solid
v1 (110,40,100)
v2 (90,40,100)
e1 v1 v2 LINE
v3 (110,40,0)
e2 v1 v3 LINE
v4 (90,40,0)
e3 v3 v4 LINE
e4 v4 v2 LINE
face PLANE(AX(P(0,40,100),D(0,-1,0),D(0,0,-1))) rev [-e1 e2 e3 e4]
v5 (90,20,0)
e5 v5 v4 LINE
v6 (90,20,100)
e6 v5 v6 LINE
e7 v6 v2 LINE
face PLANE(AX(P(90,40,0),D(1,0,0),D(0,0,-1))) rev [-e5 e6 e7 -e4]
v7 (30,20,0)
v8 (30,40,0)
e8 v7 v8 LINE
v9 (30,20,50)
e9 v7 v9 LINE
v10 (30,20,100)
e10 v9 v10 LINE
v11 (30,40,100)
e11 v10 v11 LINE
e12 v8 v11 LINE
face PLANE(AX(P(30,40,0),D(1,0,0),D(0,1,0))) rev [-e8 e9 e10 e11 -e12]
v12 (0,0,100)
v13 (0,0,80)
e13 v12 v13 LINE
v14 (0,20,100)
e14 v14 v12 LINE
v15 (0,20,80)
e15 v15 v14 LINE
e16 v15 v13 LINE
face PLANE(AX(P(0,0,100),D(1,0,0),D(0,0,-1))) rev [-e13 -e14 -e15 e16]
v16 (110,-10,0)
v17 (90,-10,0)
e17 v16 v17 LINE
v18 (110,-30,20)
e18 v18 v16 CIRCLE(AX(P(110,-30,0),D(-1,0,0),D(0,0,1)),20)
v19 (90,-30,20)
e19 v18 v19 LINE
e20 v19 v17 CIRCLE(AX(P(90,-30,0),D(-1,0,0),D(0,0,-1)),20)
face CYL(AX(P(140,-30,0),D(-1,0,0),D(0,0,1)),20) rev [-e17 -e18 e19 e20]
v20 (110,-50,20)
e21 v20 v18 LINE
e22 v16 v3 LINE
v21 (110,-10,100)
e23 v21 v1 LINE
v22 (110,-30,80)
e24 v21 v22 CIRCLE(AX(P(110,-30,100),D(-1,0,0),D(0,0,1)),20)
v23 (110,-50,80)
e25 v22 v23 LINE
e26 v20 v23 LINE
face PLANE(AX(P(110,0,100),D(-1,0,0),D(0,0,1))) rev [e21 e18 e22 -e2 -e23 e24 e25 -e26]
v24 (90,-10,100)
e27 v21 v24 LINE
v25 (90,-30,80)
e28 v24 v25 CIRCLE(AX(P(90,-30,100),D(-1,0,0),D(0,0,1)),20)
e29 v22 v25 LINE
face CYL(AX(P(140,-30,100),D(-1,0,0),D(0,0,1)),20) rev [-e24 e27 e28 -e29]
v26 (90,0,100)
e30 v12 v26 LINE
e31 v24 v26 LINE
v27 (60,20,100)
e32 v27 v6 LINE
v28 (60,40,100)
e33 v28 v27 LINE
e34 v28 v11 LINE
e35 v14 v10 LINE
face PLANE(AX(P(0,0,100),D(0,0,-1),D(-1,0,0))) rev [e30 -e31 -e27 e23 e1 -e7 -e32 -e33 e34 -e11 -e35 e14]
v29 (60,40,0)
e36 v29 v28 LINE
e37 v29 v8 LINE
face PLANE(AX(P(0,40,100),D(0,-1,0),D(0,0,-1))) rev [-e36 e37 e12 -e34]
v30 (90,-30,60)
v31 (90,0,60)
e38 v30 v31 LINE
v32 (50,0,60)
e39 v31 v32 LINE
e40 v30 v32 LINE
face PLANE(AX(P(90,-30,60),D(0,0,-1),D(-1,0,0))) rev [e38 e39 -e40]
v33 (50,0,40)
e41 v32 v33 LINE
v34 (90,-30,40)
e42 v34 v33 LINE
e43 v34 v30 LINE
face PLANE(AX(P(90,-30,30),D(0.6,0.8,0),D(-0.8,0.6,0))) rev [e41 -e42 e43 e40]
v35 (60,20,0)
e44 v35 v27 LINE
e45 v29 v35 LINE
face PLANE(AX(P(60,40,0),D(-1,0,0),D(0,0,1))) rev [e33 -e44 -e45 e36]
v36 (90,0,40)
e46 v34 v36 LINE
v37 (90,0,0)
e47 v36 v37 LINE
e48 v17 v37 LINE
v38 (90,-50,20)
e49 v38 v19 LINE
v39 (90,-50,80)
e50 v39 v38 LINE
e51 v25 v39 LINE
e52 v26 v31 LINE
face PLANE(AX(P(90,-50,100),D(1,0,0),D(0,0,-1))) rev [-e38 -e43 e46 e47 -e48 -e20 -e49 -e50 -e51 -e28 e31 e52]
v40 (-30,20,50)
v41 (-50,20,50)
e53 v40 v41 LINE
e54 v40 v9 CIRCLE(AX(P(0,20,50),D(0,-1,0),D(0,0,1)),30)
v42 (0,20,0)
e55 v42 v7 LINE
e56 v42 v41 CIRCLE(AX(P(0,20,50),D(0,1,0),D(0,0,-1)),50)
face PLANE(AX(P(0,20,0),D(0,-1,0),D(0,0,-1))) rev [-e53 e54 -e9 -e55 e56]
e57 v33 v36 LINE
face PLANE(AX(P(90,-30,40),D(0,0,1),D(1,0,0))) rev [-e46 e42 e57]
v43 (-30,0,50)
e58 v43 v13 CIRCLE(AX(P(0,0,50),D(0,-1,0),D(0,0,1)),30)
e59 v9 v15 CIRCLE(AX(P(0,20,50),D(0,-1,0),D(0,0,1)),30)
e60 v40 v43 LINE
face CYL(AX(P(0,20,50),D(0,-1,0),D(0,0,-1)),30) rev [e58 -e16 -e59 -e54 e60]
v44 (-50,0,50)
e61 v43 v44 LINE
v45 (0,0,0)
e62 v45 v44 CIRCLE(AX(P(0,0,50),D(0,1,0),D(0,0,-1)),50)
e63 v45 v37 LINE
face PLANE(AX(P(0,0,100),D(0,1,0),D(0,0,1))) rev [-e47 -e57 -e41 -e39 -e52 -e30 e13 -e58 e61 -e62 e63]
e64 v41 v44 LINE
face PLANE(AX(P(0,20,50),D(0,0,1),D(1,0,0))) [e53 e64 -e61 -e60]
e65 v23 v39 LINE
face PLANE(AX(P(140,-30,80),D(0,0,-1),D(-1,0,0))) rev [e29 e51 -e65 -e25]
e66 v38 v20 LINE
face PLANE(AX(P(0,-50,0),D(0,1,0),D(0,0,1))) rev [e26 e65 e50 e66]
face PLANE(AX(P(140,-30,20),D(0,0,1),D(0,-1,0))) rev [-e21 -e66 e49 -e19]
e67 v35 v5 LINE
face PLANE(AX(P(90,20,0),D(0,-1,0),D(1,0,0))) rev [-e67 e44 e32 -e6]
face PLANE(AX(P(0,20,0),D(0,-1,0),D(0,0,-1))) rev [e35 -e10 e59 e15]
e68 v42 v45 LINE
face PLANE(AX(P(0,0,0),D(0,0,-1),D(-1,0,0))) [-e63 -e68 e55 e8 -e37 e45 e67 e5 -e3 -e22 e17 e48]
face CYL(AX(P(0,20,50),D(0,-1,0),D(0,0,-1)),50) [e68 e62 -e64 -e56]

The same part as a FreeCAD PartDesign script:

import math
import FreeCAD as App
import Part
import Sketcher
Q = App.Units.Quantity


def add_polygon(sketch, points):
    """Adds a closed chain of lines whose ends are joined by coincident constraints."""
    first, n = sketch.GeometryCount, len(points)
    for a, b in zip(points, points[1:] + points[:1]):
        sketch.addGeometry(Part.LineSegment(App.Vector(*a, 0), App.Vector(*b, 0)), False)
    for i in range(n):
        sketch.addConstraint(Sketcher.Constraint("Coincident", first + i, 2, first + (i + 1) % n, 1))

doc = App.newDocument("Part")
body = doc.addObject("PartDesign::Body", "Body")

# Sketch on XY plane
sketch1 = body.newObject("Sketcher::SketchObject", "Sketch")
sketch1.AttachmentSupport = (doc.getObject("XY_Plane"), [""])
sketch1.MapMode = "FlatFace"
add_polygon(sketch1, [(0, 40), (0, 0), (110, 0), (110, 40)])  # lines 0-3
sketch1.addConstraint(Sketcher.Constraint("Vertical", 0))
sketch1.addConstraint(Sketcher.Constraint("Horizontal", 1))
sketch1.addConstraint(Sketcher.Constraint("Vertical", 2))
sketch1.addConstraint(Sketcher.Constraint("Horizontal", 3))
sketch1.addConstraint(Sketcher.Constraint("Coincident", 0, 2, -1, 1))
sketch1.addConstraint(Sketcher.Constraint("DistanceX", 1, 1, 1, 2, Q("110 mm")))
sketch1.addConstraint(Sketcher.Constraint("DistanceY", 0, 2, 0, 1, Q("40 mm")))
pad1 = body.newObject("PartDesign::Pad", "Pad")
pad1.Profile = sketch1
pad1.Length = 100

# Sketch on XY plane
sketch2 = body.newObject("Sketcher::SketchObject", "Sketch001")
sketch2.AttachmentSupport = (doc.getObject("XY_Plane"), [""])
sketch2.MapMode = "FlatFace"
sketch2.AttachmentOffset = App.Placement(App.Vector(0, 0, 100), App.Rotation())
add_polygon(sketch2, [(60, 40), (60, 20), (90, 20), (90, 40)])  # lines 0-3
add_polygon(sketch2, [(0, 40), (0, 20), (30, 20), (30, 40)])  # lines 4-7
sketch2.addConstraint(Sketcher.Constraint("Vertical", 0))
sketch2.addConstraint(Sketcher.Constraint("Horizontal", 1))
sketch2.addConstraint(Sketcher.Constraint("Vertical", 2))
sketch2.addConstraint(Sketcher.Constraint("Horizontal", 3))
sketch2.addConstraint(Sketcher.Constraint("Vertical", 4))
sketch2.addConstraint(Sketcher.Constraint("Horizontal", 5))
sketch2.addConstraint(Sketcher.Constraint("Vertical", 6))
sketch2.addConstraint(Sketcher.Constraint("Horizontal", 7))
sketch2.addConstraint(Sketcher.Constraint("PointOnObject", 4, 2, -2))
sketch2.addConstraint(Sketcher.Constraint("Horizontal", 1, 2, 4, 2))
sketch2.addConstraint(Sketcher.Constraint("Horizontal", 3, 2, 6, 2))
sketch2.addConstraint(Sketcher.Constraint("Equal", 3, 5))
sketch2.addConstraint(Sketcher.Constraint("DistanceX", 1, 1, 1, 2, Q("30 mm")))
sketch2.addConstraint(Sketcher.Constraint("DistanceY", 0, 2, 0, 1, Q("20 mm")))
sketch2.addConstraint(Sketcher.Constraint("DistanceX", -1, 1, 0, 2, Q("60 mm")))
sketch2.addConstraint(Sketcher.Constraint("DistanceY", -1, 1, 0, 2, Q("20 mm")))
pocket1 = body.newObject("PartDesign::Pocket", "Pocket")
pocket1.Profile = sketch2
pocket1.Length = 100

# Sketch on XZ plane
sketch3 = body.newObject("Sketcher::SketchObject", "Sketch002")
sketch3.AttachmentSupport = (doc.getObject("XZ_Plane"), [""])
sketch3.MapMode = "FlatFace"
add_polygon(sketch3, [(110, 0), (110, 100), (90, 100), (90, 0)])  # lines 0-3
sketch3.addConstraint(Sketcher.Constraint("Vertical", 0))
sketch3.addConstraint(Sketcher.Constraint("Horizontal", 1))
sketch3.addConstraint(Sketcher.Constraint("Vertical", 2))
sketch3.addConstraint(Sketcher.Constraint("Horizontal", 3))
sketch3.addConstraint(Sketcher.Constraint("PointOnObject", 2, 2, -1))
sketch3.addConstraint(Sketcher.Constraint("DistanceX", 1, 2, 1, 1, Q("20 mm")))
sketch3.addConstraint(Sketcher.Constraint("DistanceY", 0, 1, 0, 2, Q("100 mm")))
sketch3.addConstraint(Sketcher.Constraint("DistanceX", -1, 1, 0, 2, Q("110 mm")))
pad2 = body.newObject("PartDesign::Pad", "Pad001")
pad2.Profile = sketch3
pad2.Length = 50

# Sketch on YZ plane
sketch4 = body.newObject("Sketcher::SketchObject", "Sketch003")
sketch4.AttachmentSupport = (doc.getObject("YZ_Plane"), [""])
sketch4.MapMode = "FlatFace"
sketch4.AttachmentOffset = App.Placement(App.Vector(0, 0, 90), App.Rotation())
sketch4.addGeometry(Part.LineSegment(App.Vector(-30, 80, 0), App.Vector(-50, 80, 0)), False)
sketch4.addGeometry(Part.LineSegment(App.Vector(-50, 80, 0), App.Vector(-50, 100, 0)), False)
sketch4.addGeometry(Part.LineSegment(App.Vector(-50, 100, 0), App.Vector(-10, 100, 0)), False)
sketch4.addGeometry(Part.ArcOfCircle(Part.Circle(App.Vector(-30, 100, 0), App.Vector(0, 0, 1), 20), math.radians(-90), math.radians(0)), False)
sketch4.addGeometry(Part.LineSegment(App.Vector(-50, 20, 0), App.Vector(-30, 20, 0)), False)
sketch4.addGeometry(Part.ArcOfCircle(Part.Circle(App.Vector(-30, 0, 0), App.Vector(0, 0, 1), 20), math.radians(0), math.radians(90)), False)
sketch4.addGeometry(Part.LineSegment(App.Vector(-10, 0, 0), App.Vector(-50, 0, 0)), False)
sketch4.addGeometry(Part.LineSegment(App.Vector(-50, 0, 0), App.Vector(-50, 20, 0)), False)
sketch4.addConstraint(Sketcher.Constraint("Coincident", 0, 2, 1, 1))
sketch4.addConstraint(Sketcher.Constraint("Coincident", 1, 2, 2, 1))
sketch4.addConstraint(Sketcher.Constraint("Coincident", 2, 2, 3, 2))
sketch4.addConstraint(Sketcher.Constraint("Tangent", 3, 1, 0, 1))
sketch4.addConstraint(Sketcher.Constraint("Tangent", 4, 2, 5, 2))
sketch4.addConstraint(Sketcher.Constraint("Coincident", 5, 1, 6, 1))
sketch4.addConstraint(Sketcher.Constraint("Coincident", 6, 2, 7, 1))
sketch4.addConstraint(Sketcher.Constraint("Coincident", 7, 2, 4, 1))
sketch4.addConstraint(Sketcher.Constraint("Horizontal", 0))
sketch4.addConstraint(Sketcher.Constraint("Vertical", 1))
sketch4.addConstraint(Sketcher.Constraint("Horizontal", 2))
sketch4.addConstraint(Sketcher.Constraint("Horizontal", 4))
sketch4.addConstraint(Sketcher.Constraint("Horizontal", 6))
sketch4.addConstraint(Sketcher.Constraint("Vertical", 7))
sketch4.addConstraint(Sketcher.Constraint("Equal", 3, 5))
sketch4.addConstraint(Sketcher.Constraint("PointOnObject", 5, 3, -1))
sketch4.addConstraint(Sketcher.Constraint("PointOnObject", 5, 1, -1))
sketch4.addConstraint(Sketcher.Constraint("Horizontal", 3, 3, 1, 2))
sketch4.addConstraint(Sketcher.Constraint("Vertical", 3, 3, 5, 3))
sketch4.addConstraint(Sketcher.Constraint("Vertical", 1, 2, 6, 2))
sketch4.addConstraint(Sketcher.Constraint("Equal", 4, 1))
sketch4.addConstraint(Sketcher.Constraint("Radius", 3, Q("20 mm")))
sketch4.addConstraint(Sketcher.Constraint("DistanceX", 3, 3, -1, 1, Q("30 mm")))
sketch4.addConstraint(Sketcher.Constraint("DistanceY", -1, 1, 3, 3, Q("100 mm")))
pocket2 = body.newObject("PartDesign::Pocket", "Pocket001")
pocket2.Profile = sketch4
pocket2.Length = 50
pocket2.Reversed = True

# Sketch on XZ plane
sketch5 = body.newObject("Sketcher::SketchObject", "Sketch004")
sketch5.AttachmentSupport = (doc.getObject("XZ_Plane"), [""])
sketch5.MapMode = "FlatFace"
add_polygon(sketch5, [(90, 40), (90, 60), (50, 60), (50, 40)])  # lines 0-3
sketch5.addConstraint(Sketcher.Constraint("Vertical", 0))
sketch5.addConstraint(Sketcher.Constraint("Horizontal", 1))
sketch5.addConstraint(Sketcher.Constraint("Vertical", 2))
sketch5.addConstraint(Sketcher.Constraint("Horizontal", 3))
sketch5.addConstraint(Sketcher.Constraint("DistanceX", 1, 2, 1, 1, Q("40 mm")))
sketch5.addConstraint(Sketcher.Constraint("DistanceY", 0, 1, 0, 2, Q("20 mm")))
sketch5.addConstraint(Sketcher.Constraint("DistanceX", -1, 1, 0, 2, Q("90 mm")))
sketch5.addConstraint(Sketcher.Constraint("DistanceY", -1, 1, 0, 2, Q("60 mm")))
pad3 = body.newObject("PartDesign::Pad", "Pad002")
pad3.Profile = sketch5
pad3.Length = 30

# Sketch on XY plane
sketch6 = body.newObject("Sketcher::SketchObject", "Sketch005")
sketch6.AttachmentSupport = (doc.getObject("XY_Plane"), [""])
sketch6.MapMode = "FlatFace"
sketch6.AttachmentOffset = App.Placement(App.Vector(0, 0, 60), App.Rotation())
add_polygon(sketch6, [(90, -30), (50, 0), (50, -30)])  # lines 0-2
sketch6.addConstraint(Sketcher.Constraint("Vertical", 1))
sketch6.addConstraint(Sketcher.Constraint("Horizontal", 2))
sketch6.addConstraint(Sketcher.Constraint("PointOnObject", 0, 2, -1))
sketch6.addConstraint(Sketcher.Constraint("DistanceX", 2, 1, 2, 2, Q("40 mm")))
sketch6.addConstraint(Sketcher.Constraint("DistanceY", 1, 2, 1, 1, Q("30 mm")))
sketch6.addConstraint(Sketcher.Constraint("DistanceX", -1, 1, 0, 2, Q("50 mm")))
pocket3 = body.newObject("PartDesign::Pocket", "Pocket002")
pocket3.Profile = sketch6
pocket3.Length = 30

# Sketch on XZ plane
sketch7 = body.newObject("Sketcher::SketchObject", "Sketch006")
sketch7.AttachmentSupport = (doc.getObject("XZ_Plane"), [""])
sketch7.MapMode = "FlatFace"
add_polygon(sketch7, [(0, 0), (0, 50), (-50, 50), (-50, 0)])  # lines 0-3
sketch7.addConstraint(Sketcher.Constraint("Vertical", 0))
sketch7.addConstraint(Sketcher.Constraint("Horizontal", 1))
sketch7.addConstraint(Sketcher.Constraint("Vertical", 2))
sketch7.addConstraint(Sketcher.Constraint("Horizontal", 3))
sketch7.addConstraint(Sketcher.Constraint("Coincident", 3, 2, -1, 1))
sketch7.addConstraint(Sketcher.Constraint("Equal", 3, 0))
sketch7.addConstraint(Sketcher.Constraint("DistanceX", 1, 2, 1, 1, Q("50 mm")))
pad4 = body.newObject("PartDesign::Pad", "Pad003")
pad4.Profile = sketch7
pad4.Length = 20
pad4.Reversed = True

# Sketch on XZ plane
sketch8 = body.newObject("Sketcher::SketchObject", "Sketch007")
sketch8.AttachmentSupport = (doc.getObject("XZ_Plane"), [""])
sketch8.MapMode = "FlatFace"
sketch8.addGeometry(Part.LineSegment(App.Vector(0, 50, 0), App.Vector(-30, 50, 0)), False)
sketch8.addGeometry(Part.ArcOfCircle(Part.Circle(App.Vector(0, 50, 0), App.Vector(0, 0, 1), 30), math.radians(180), math.radians(450)), False)
sketch8.addGeometry(Part.LineSegment(App.Vector(0, 80, 0), App.Vector(0, 50, 0)), False)
sketch8.addConstraint(Sketcher.Constraint("Coincident", 0, 2, 1, 1))
sketch8.addConstraint(Sketcher.Constraint("Coincident", 1, 2, 2, 1))
sketch8.addConstraint(Sketcher.Constraint("Coincident", 2, 2, 0, 1))
sketch8.addConstraint(Sketcher.Constraint("Horizontal", 0))
sketch8.addConstraint(Sketcher.Constraint("Vertical", 2))
sketch8.addConstraint(Sketcher.Constraint("Coincident", 2, 2, 1, 3))
sketch8.addConstraint(Sketcher.Constraint("PointOnObject", 1, 3, -2))
sketch8.addConstraint(Sketcher.Constraint("Radius", 1, Q("30 mm")))
sketch8.addConstraint(Sketcher.Constraint("DistanceY", -1, 1, 1, 3, Q("50 mm")))
pocket4 = body.newObject("PartDesign::Pocket", "Pocket003")
pocket4.Profile = sketch8
pocket4.Length = 20

# Sketch on XZ plane
sketch9 = body.newObject("Sketcher::SketchObject", "Sketch008")
sketch9.AttachmentSupport = (doc.getObject("XZ_Plane"), [""])
sketch9.MapMode = "FlatFace"
sketch9.addGeometry(Part.LineSegment(App.Vector(-50, 50, 0), App.Vector(-50, 0, 0)), False)
sketch9.addGeometry(Part.LineSegment(App.Vector(-50, 0, 0), App.Vector(0, 0, 0)), False)
sketch9.addGeometry(Part.ArcOfCircle(Part.Circle(App.Vector(0, 50, 0), App.Vector(0, 0, 1), 50), math.radians(-180), math.radians(-90)), False)
sketch9.addConstraint(Sketcher.Constraint("Coincident", 0, 2, 1, 1))
sketch9.addConstraint(Sketcher.Constraint("Tangent", 1, 2, 2, 2))
sketch9.addConstraint(Sketcher.Constraint("Tangent", 2, 1, 0, 1))
sketch9.addConstraint(Sketcher.Constraint("Vertical", 0))
sketch9.addConstraint(Sketcher.Constraint("Horizontal", 1))
sketch9.addConstraint(Sketcher.Constraint("Coincident", 1, 2, -1, 1))
sketch9.addConstraint(Sketcher.Constraint("Radius", 2, Q("50 mm")))
pocket5 = body.newObject("PartDesign::Pocket", "Pocket004")
pocket5.Profile = sketch9
pocket5.Length = 20

doc.recompute()
